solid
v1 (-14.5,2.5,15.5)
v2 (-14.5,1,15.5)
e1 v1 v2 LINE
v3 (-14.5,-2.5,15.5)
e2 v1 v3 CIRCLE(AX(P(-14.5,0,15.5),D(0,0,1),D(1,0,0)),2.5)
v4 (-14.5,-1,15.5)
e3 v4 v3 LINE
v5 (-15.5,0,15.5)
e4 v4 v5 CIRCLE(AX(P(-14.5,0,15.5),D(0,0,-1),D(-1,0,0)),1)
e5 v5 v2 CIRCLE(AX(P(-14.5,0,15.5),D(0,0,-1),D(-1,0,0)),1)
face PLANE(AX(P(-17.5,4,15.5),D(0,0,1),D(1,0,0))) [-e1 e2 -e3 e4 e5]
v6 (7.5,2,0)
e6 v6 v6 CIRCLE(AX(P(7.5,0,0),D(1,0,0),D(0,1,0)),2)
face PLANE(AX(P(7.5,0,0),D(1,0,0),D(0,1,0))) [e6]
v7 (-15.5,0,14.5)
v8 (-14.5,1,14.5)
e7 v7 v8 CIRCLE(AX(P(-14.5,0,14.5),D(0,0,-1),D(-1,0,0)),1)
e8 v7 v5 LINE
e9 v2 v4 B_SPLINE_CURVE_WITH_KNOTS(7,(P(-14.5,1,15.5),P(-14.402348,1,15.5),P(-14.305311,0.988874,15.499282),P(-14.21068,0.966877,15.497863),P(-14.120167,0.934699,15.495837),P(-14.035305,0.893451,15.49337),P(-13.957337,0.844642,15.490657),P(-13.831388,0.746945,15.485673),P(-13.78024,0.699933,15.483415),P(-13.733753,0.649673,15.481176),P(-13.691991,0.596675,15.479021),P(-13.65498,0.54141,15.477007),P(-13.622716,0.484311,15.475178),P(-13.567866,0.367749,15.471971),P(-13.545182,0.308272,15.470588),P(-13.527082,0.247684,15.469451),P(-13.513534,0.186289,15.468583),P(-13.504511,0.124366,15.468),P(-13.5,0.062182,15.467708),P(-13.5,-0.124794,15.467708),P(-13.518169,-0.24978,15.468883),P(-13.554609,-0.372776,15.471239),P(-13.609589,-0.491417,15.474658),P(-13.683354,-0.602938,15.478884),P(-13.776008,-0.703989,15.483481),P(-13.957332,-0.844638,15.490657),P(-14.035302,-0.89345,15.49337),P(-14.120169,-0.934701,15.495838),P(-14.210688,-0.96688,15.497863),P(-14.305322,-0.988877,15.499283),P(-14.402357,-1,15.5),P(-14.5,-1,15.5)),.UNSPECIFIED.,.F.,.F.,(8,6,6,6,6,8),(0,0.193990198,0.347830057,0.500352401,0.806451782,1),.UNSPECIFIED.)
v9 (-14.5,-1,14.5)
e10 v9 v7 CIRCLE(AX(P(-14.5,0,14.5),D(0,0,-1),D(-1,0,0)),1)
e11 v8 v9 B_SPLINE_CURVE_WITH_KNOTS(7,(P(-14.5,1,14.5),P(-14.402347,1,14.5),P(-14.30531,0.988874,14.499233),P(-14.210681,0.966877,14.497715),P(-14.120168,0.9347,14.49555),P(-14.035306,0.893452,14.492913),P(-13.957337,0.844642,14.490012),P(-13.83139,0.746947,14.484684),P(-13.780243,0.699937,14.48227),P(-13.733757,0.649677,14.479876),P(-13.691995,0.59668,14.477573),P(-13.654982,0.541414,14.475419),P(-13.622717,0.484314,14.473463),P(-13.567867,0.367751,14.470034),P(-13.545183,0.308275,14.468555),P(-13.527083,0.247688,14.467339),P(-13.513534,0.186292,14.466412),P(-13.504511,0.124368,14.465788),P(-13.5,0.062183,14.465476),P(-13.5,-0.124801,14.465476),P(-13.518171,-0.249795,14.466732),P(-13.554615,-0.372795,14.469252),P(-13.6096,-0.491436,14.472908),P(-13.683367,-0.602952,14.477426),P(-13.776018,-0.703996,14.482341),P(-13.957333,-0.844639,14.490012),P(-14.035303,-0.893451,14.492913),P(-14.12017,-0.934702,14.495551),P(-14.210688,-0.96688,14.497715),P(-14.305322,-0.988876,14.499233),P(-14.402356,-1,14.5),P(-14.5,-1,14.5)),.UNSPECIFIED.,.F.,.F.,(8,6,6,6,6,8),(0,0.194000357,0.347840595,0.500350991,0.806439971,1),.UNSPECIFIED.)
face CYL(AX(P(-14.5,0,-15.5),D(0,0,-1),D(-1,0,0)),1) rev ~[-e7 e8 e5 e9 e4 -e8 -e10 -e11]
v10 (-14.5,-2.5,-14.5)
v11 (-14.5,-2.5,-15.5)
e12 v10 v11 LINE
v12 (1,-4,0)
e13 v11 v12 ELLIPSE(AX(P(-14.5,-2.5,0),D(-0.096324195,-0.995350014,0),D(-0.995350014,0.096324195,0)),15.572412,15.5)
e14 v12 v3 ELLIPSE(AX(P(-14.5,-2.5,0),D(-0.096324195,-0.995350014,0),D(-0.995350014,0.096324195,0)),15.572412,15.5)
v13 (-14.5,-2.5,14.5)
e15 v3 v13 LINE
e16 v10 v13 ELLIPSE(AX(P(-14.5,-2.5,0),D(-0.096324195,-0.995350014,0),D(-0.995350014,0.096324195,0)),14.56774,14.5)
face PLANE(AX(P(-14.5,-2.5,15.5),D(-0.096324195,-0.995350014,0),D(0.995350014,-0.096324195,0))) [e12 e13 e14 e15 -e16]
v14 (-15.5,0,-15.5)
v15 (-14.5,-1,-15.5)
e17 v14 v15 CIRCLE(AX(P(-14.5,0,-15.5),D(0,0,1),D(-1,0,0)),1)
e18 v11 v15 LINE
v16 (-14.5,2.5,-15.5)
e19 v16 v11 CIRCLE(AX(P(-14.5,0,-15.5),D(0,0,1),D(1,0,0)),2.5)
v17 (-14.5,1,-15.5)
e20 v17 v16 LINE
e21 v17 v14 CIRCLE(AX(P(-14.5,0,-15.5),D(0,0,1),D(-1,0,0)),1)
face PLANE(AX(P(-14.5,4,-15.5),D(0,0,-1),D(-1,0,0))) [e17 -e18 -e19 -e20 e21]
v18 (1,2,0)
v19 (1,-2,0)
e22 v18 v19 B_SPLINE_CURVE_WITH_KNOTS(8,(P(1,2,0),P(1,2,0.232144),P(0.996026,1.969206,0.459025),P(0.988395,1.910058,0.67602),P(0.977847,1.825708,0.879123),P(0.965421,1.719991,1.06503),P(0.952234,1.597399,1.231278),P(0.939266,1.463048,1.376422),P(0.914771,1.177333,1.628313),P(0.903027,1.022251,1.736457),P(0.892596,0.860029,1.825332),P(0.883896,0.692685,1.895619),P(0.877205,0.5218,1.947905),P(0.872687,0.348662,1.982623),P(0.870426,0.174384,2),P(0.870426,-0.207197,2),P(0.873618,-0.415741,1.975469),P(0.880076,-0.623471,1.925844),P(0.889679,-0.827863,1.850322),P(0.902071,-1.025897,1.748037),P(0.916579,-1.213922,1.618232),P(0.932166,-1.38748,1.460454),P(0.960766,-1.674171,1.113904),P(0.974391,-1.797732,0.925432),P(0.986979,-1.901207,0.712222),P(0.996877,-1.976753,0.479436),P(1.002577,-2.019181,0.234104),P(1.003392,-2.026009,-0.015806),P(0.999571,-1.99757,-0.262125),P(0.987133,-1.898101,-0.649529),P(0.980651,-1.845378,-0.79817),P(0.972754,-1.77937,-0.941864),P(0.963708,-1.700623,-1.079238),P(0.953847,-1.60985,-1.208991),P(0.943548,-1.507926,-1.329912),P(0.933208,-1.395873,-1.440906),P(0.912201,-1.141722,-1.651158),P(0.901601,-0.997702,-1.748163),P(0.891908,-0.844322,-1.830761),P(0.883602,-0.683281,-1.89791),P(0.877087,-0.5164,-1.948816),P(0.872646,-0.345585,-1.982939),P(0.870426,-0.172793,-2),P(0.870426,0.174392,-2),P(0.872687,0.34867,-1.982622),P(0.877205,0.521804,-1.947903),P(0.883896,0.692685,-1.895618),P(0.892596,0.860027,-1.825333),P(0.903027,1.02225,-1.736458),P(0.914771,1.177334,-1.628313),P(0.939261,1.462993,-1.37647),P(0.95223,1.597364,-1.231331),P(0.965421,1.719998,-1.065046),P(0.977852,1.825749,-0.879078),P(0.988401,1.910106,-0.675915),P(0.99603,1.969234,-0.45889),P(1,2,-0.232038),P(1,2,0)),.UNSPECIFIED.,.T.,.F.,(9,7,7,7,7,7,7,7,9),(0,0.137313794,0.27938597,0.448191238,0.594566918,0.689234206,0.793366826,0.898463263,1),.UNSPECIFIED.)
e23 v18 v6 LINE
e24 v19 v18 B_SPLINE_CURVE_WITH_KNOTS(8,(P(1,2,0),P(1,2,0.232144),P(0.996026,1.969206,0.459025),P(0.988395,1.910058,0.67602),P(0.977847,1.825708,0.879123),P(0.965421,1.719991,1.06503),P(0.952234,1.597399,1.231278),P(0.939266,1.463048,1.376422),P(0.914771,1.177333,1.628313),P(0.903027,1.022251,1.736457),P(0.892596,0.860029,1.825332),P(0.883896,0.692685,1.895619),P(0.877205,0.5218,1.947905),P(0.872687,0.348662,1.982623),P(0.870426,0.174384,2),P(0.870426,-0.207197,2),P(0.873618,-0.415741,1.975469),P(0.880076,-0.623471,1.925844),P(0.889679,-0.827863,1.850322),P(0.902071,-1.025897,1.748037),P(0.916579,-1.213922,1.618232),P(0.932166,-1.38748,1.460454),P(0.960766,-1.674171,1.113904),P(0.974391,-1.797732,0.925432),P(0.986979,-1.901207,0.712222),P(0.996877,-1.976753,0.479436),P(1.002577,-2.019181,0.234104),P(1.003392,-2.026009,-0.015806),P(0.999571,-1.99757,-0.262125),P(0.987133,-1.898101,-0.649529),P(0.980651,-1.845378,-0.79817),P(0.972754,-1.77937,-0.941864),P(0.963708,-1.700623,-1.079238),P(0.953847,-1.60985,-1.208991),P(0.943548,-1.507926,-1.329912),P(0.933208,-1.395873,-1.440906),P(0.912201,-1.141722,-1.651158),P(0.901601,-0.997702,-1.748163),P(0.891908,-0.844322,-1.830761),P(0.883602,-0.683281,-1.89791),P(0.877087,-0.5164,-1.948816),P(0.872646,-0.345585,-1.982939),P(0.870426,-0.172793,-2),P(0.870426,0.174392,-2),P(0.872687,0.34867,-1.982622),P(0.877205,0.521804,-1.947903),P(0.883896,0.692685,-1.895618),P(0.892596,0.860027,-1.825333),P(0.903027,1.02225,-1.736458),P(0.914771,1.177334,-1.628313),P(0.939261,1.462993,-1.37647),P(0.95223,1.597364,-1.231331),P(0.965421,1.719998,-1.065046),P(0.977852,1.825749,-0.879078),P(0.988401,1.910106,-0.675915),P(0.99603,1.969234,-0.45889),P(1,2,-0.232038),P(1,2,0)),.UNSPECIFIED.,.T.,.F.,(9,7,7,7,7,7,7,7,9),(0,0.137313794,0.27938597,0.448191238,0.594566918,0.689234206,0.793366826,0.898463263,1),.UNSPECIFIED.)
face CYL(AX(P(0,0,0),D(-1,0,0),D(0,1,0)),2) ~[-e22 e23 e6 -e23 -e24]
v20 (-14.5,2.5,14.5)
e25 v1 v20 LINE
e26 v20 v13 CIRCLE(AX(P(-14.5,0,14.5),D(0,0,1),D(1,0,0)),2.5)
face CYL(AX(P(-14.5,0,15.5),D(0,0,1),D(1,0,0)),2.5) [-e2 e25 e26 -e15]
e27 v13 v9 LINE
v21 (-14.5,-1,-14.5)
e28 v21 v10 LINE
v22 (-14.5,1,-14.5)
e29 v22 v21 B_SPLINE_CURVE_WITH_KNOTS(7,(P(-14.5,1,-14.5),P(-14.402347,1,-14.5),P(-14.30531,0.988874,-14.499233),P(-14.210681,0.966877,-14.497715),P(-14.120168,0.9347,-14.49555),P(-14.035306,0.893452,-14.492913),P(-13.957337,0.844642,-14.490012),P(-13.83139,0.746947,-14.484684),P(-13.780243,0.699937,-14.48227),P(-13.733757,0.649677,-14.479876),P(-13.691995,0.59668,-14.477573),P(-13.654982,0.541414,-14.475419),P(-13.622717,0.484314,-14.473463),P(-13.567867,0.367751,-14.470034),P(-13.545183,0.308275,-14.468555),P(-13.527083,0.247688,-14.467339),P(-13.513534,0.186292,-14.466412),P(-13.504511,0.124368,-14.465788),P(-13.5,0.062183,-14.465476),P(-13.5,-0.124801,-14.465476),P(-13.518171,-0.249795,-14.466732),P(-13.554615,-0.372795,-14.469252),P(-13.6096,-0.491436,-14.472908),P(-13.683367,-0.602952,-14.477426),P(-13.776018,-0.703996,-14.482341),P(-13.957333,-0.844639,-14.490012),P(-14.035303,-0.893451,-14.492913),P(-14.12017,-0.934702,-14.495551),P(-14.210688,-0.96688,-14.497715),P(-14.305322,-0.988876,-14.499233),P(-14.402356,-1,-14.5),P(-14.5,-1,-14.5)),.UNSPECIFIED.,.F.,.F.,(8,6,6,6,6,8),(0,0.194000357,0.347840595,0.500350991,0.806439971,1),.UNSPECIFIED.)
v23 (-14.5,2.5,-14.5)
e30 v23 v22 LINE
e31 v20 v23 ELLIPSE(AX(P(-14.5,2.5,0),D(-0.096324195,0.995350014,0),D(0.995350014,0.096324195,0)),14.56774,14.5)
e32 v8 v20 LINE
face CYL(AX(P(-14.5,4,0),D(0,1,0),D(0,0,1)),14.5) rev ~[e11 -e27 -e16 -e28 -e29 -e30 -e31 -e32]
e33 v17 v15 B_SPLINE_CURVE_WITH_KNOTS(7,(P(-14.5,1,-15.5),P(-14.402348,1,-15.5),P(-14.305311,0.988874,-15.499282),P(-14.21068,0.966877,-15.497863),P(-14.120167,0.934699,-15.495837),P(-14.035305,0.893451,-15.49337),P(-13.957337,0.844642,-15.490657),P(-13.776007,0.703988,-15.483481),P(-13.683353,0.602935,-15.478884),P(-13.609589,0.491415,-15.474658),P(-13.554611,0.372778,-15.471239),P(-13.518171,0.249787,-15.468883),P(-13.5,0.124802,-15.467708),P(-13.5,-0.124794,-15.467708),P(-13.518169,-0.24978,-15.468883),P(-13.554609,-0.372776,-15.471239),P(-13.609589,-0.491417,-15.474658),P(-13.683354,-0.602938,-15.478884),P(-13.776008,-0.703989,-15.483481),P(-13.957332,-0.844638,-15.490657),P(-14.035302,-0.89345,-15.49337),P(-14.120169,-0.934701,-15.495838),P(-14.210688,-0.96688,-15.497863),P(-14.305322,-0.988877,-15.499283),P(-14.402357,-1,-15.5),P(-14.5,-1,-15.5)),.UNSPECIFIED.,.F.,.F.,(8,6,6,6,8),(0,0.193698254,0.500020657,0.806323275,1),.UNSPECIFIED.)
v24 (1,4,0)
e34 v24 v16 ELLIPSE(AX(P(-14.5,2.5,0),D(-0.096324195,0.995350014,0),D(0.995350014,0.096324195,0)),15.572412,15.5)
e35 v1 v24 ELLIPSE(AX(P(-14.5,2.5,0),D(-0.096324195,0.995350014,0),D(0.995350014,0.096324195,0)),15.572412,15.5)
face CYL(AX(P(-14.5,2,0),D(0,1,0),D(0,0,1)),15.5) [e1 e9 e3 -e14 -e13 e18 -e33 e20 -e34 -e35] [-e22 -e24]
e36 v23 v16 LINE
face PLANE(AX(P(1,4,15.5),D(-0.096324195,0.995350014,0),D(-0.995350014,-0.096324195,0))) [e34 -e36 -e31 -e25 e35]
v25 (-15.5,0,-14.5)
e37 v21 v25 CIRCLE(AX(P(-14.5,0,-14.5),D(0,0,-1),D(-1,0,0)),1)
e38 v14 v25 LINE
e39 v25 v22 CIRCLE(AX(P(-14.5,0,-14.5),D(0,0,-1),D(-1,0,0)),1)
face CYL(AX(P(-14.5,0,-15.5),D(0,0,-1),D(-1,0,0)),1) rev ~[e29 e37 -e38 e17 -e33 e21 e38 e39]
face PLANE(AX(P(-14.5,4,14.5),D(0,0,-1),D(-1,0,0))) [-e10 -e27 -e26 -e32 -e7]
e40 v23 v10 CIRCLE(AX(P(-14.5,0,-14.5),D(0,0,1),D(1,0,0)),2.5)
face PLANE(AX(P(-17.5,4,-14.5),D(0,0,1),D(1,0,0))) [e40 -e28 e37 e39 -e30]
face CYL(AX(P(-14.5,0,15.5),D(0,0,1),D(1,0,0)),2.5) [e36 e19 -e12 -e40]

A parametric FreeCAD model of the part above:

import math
import FreeCAD as App
import Part
import Sketcher

V = App.Vector

doc = App.newDocument("Part")
body = doc.addObject("PartDesign::Body", "Body")

sketch1 = body.newObject("Sketcher::SketchObject", "Sketch")
sketch1.AttachmentSupport = (doc.getObject("YZ_Plane"), [""])
sketch1.MapMode = "FlatFace"
sketch1.addGeometry(Part.Circle(V(0, 0, 0), V(0, 0, 1), 2), False)
sketch1.addConstraint([
    Sketcher.Constraint("Coincident", 0, 3, -1, 1),
    Sketcher.Constraint("Diameter", 0, 4.0),
])
pad1 = body.newObject("PartDesign::Pad", "Pad")
pad1.Profile = sketch1
pad1.Length = 7.5

sketch2 = body.newObject("Sketcher::SketchObject", "Sketch001")
sketch2.AttachmentSupport = (doc.getObject("XZ_Plane"), [""])
sketch2.MapMode = "FlatFace"
sketch2.AttachmentOffset = App.Placement(V(0, 0, -2), App.Rotation())
sketch2.addGeometry([
    Part.ArcOfCircle(Part.Circle(V(-14.5, 0, 0), V(0, 0, 1), 14.5), math.radians(-90), math.radians(90)),
    Part.LineSegment(V(-14.5, 14.5, 0), V(-14.5, 15.5, 0)),
    Part.ArcOfCircle(Part.Circle(V(-14.5, 0, 0), V(0, 0, 1), 15.5), math.radians(-90), math.radians(90)),
    Part.LineSegment(V(-14.5, -15.5, 0), V(-14.5, -14.5, 0)),
], False)
sketch2.addConstraint([
    Sketcher.Constraint("Coincident", 0, 2, 1, 1),
    Sketcher.Constraint("Coincident", 1, 2, 2, 2),
    Sketcher.Constraint("Coincident", 2, 1, 3, 1),
    Sketcher.Constraint("Coincident", 3, 2, 0, 1),
    Sketcher.Constraint("Vertical", 1),
    Sketcher.Constraint("Vertical", 3),
    Sketcher.Constraint("Coincident", 2, 3, 0, 3),
    Sketcher.Constraint("Symmetric", 1, 2, 2, 1, -1),
    Sketcher.Constraint("Vertical", 2, 3, 0, 2),
    Sketcher.Constraint("Radius", 2, 15.5),
    Sketcher.Constraint("Radius", 0, 14.5),
    Sketcher.Constraint("DistanceX", 0, 3, -1, 1, 14.5),
])
pad2 = body.newObject("PartDesign::Pad", "Pad001")
pad2.Profile = sketch2
pad2.Length = 4

sketch3 = body.newObject("Sketcher::SketchObject", "Sketch002")
sketch3.AttachmentSupport = (doc.getObject("XZ_Plane"), [""])
sketch3.MapMode = "FlatFace"
sketch3.AttachmentOffset = App.Placement(V(0, 0, -4), App.Rotation())
sketch3.addGeometry([
    Part.ArcOfCircle(Part.Circle(V(-14.5, 0, 0), V(0, 0, 1), 14.5), math.radians(-90), math.radians(90)),
    Part.LineSegment(V(-14.5, 14.5, 0), V(-17.5, 14.5, 0)),
    Part.LineSegment(V(-17.5, 14.5, 0), V(-17.5, 15.5, 0)),
    Part.LineSegment(V(-17.5, 15.5, 0), V(-14.5, 15.5, 0)),
    Part.ArcOfCircle(Part.Circle(V(-14.5, 0, 0), V(0, 0, 1), 15.5), math.radians(-90), math.radians(90)),
    Part.LineSegment(V(-14.5, -15.5, 0), V(-17.5, -15.5, 0)),
    Part.LineSegment(V(-17.5, -15.5, 0), V(-17.5, -14.5, 0)),
    Part.LineSegment(V(-17.5, -14.5, 0), V(-14.5, -14.5, 0)),
], False)
sketch3.addConstraint([
    Sketcher.Constraint("Tangent", 0, 2, 1, 1),
    Sketcher.Constraint("Coincident", 1, 2, 2, 1),
    Sketcher.Constraint("Coincident", 2, 2, 3, 1),
    Sketcher.Constraint("Tangent", 3, 2, 4, 2),
    Sketcher.Constraint("Tangent", 4, 1, 5, 1),
    Sketcher.Constraint("Coincident", 5, 2, 6, 1),
    Sketcher.Constraint("Coincident", 6, 2, 7, 1),
    Sketcher.Constraint("Tangent", 7, 2, 0, 1),
    Sketcher.Constraint("Horizontal", 1),
    Sketcher.Constraint("Vertical", 2),
    Sketcher.Constraint("Horizontal", 3),
    Sketcher.Constraint("Horizontal", 5),
    Sketcher.Constraint("Vertical", 6),
    Sketcher.Constraint("Horizontal", 7),
    Sketcher.Constraint("Coincident", 4, 3, 0, 3),
    Sketcher.Constraint("Symmetric", 2, 2, 5, 2, -1),
    Sketcher.Constraint("DistanceX", 1, 2, 1, 1, 3.0),
    Sketcher.Constraint("DistanceY", 2, 1, 2, 2, 1.0),
    Sketcher.Constraint("Radius", 0, 14.5),
    Sketcher.Constraint("DistanceX", 0, 3, -1, 1, 14.5),
])
pad3 = body.newObject("PartDesign::Pad", "Pad002")
pad3.Profile = sketch3
pad3.Length = 8

sketch4 = body.newObject("Sketcher::SketchObject", "Sketch003")
sketch4.AttachmentSupport = (doc.getObject("XY_Plane"), [""])
sketch4.MapMode = "FlatFace"
sketch4.AttachmentOffset = App.Placement(V(0, 0, 15.5), App.Rotation())
sketch4.addGeometry([
    Part.LineSegment(V(1, 4, 0), V(-17.5, 4, 0)),
    Part.LineSegment(V(-17.5, 4, 0), V(-17.5, -4, 0)),
    Part.LineSegment(V(-17.5, -4, 0), V(1, -4, 0)),
    Part.LineSegment(V(1, -4, 0), V(-14.5, -2.5, 0)),
    Part.ArcOfCircle(Part.Circle(V(-14.5, 0, 0), V(0, 0, 1), 2.5), math.radians(90), math.radians(270)),
    Part.LineSegment(V(-14.5, 2.5, 0), V(1, 4, 0)),
], False)
sketch4.addConstraint([
    Sketcher.Constraint("Coincident", 0, 2, 1, 1),
    Sketcher.Constraint("Coincident", 1, 2, 2, 1),
    Sketcher.Constraint("Coincident", 2, 2, 3, 1),
    Sketcher.Constraint("Coincident", 3, 2, 4, 2),
    Sketcher.Constraint("Coincident", 4, 1, 5, 1),
    Sketcher.Constraint("Coincident", 5, 2, 0, 1),
    Sketcher.Constraint("Horizontal", 0),
    Sketcher.Constraint("Vertical", 1),
    Sketcher.Constraint("Horizontal", 2),
    Sketcher.Constraint("Symmetric", 3, 2, 4, 1, -1),
    Sketcher.Constraint("Symmetric", 2, 2, 5, 2, -1),
    Sketcher.Constraint("Vertical", 4, 3, 3, 2),
    Sketcher.Constraint("Radius", 4, 2.5),
    Sketcher.Constraint("DistanceY", 1, 2, 1, 1, 8.0),
    Sketcher.Constraint("DistanceX", -1, 1, 2, 2, 1.0),
    Sketcher.Constraint("DistanceX", 4, 3, -1, 1, 14.5),
    Sketcher.Constraint("DistanceX", 0, 2, 0, 1, 18.517),
])
pocket1 = body.newObject("PartDesign::Pocket", "Pocket")
pocket1.Profile = sketch4
pocket1.Type = "ThroughAll"

sketch5 = body.newObject("Sketcher::SketchObject", "Sketch004")
sketch5.AttachmentSupport = (doc.getObject("XY_Plane"), [""])
sketch5.MapMode = "FlatFace"
sketch5.AttachmentOffset = App.Placement(V(0, 0, -15.5), App.Rotation())
sketch5.addGeometry(Part.Circle(V(-14.5, 0, 0), V(0, 0, 1), 1), False)
sketch5.addConstraint([
    Sketcher.Constraint("PointOnObject", 0, 3, -1),
    Sketcher.Constraint("Diameter", 0, 2.0),
    Sketcher.Constraint("DistanceX", 0, 3, -1, 1, 14.5),
])
pocket2 = body.newObject("PartDesign::Pocket", "Pocket001")
pocket2.Profile = sketch5
pocket2.Type = "ThroughAll"
pocket2.Reversed = True

doc.recompute()
